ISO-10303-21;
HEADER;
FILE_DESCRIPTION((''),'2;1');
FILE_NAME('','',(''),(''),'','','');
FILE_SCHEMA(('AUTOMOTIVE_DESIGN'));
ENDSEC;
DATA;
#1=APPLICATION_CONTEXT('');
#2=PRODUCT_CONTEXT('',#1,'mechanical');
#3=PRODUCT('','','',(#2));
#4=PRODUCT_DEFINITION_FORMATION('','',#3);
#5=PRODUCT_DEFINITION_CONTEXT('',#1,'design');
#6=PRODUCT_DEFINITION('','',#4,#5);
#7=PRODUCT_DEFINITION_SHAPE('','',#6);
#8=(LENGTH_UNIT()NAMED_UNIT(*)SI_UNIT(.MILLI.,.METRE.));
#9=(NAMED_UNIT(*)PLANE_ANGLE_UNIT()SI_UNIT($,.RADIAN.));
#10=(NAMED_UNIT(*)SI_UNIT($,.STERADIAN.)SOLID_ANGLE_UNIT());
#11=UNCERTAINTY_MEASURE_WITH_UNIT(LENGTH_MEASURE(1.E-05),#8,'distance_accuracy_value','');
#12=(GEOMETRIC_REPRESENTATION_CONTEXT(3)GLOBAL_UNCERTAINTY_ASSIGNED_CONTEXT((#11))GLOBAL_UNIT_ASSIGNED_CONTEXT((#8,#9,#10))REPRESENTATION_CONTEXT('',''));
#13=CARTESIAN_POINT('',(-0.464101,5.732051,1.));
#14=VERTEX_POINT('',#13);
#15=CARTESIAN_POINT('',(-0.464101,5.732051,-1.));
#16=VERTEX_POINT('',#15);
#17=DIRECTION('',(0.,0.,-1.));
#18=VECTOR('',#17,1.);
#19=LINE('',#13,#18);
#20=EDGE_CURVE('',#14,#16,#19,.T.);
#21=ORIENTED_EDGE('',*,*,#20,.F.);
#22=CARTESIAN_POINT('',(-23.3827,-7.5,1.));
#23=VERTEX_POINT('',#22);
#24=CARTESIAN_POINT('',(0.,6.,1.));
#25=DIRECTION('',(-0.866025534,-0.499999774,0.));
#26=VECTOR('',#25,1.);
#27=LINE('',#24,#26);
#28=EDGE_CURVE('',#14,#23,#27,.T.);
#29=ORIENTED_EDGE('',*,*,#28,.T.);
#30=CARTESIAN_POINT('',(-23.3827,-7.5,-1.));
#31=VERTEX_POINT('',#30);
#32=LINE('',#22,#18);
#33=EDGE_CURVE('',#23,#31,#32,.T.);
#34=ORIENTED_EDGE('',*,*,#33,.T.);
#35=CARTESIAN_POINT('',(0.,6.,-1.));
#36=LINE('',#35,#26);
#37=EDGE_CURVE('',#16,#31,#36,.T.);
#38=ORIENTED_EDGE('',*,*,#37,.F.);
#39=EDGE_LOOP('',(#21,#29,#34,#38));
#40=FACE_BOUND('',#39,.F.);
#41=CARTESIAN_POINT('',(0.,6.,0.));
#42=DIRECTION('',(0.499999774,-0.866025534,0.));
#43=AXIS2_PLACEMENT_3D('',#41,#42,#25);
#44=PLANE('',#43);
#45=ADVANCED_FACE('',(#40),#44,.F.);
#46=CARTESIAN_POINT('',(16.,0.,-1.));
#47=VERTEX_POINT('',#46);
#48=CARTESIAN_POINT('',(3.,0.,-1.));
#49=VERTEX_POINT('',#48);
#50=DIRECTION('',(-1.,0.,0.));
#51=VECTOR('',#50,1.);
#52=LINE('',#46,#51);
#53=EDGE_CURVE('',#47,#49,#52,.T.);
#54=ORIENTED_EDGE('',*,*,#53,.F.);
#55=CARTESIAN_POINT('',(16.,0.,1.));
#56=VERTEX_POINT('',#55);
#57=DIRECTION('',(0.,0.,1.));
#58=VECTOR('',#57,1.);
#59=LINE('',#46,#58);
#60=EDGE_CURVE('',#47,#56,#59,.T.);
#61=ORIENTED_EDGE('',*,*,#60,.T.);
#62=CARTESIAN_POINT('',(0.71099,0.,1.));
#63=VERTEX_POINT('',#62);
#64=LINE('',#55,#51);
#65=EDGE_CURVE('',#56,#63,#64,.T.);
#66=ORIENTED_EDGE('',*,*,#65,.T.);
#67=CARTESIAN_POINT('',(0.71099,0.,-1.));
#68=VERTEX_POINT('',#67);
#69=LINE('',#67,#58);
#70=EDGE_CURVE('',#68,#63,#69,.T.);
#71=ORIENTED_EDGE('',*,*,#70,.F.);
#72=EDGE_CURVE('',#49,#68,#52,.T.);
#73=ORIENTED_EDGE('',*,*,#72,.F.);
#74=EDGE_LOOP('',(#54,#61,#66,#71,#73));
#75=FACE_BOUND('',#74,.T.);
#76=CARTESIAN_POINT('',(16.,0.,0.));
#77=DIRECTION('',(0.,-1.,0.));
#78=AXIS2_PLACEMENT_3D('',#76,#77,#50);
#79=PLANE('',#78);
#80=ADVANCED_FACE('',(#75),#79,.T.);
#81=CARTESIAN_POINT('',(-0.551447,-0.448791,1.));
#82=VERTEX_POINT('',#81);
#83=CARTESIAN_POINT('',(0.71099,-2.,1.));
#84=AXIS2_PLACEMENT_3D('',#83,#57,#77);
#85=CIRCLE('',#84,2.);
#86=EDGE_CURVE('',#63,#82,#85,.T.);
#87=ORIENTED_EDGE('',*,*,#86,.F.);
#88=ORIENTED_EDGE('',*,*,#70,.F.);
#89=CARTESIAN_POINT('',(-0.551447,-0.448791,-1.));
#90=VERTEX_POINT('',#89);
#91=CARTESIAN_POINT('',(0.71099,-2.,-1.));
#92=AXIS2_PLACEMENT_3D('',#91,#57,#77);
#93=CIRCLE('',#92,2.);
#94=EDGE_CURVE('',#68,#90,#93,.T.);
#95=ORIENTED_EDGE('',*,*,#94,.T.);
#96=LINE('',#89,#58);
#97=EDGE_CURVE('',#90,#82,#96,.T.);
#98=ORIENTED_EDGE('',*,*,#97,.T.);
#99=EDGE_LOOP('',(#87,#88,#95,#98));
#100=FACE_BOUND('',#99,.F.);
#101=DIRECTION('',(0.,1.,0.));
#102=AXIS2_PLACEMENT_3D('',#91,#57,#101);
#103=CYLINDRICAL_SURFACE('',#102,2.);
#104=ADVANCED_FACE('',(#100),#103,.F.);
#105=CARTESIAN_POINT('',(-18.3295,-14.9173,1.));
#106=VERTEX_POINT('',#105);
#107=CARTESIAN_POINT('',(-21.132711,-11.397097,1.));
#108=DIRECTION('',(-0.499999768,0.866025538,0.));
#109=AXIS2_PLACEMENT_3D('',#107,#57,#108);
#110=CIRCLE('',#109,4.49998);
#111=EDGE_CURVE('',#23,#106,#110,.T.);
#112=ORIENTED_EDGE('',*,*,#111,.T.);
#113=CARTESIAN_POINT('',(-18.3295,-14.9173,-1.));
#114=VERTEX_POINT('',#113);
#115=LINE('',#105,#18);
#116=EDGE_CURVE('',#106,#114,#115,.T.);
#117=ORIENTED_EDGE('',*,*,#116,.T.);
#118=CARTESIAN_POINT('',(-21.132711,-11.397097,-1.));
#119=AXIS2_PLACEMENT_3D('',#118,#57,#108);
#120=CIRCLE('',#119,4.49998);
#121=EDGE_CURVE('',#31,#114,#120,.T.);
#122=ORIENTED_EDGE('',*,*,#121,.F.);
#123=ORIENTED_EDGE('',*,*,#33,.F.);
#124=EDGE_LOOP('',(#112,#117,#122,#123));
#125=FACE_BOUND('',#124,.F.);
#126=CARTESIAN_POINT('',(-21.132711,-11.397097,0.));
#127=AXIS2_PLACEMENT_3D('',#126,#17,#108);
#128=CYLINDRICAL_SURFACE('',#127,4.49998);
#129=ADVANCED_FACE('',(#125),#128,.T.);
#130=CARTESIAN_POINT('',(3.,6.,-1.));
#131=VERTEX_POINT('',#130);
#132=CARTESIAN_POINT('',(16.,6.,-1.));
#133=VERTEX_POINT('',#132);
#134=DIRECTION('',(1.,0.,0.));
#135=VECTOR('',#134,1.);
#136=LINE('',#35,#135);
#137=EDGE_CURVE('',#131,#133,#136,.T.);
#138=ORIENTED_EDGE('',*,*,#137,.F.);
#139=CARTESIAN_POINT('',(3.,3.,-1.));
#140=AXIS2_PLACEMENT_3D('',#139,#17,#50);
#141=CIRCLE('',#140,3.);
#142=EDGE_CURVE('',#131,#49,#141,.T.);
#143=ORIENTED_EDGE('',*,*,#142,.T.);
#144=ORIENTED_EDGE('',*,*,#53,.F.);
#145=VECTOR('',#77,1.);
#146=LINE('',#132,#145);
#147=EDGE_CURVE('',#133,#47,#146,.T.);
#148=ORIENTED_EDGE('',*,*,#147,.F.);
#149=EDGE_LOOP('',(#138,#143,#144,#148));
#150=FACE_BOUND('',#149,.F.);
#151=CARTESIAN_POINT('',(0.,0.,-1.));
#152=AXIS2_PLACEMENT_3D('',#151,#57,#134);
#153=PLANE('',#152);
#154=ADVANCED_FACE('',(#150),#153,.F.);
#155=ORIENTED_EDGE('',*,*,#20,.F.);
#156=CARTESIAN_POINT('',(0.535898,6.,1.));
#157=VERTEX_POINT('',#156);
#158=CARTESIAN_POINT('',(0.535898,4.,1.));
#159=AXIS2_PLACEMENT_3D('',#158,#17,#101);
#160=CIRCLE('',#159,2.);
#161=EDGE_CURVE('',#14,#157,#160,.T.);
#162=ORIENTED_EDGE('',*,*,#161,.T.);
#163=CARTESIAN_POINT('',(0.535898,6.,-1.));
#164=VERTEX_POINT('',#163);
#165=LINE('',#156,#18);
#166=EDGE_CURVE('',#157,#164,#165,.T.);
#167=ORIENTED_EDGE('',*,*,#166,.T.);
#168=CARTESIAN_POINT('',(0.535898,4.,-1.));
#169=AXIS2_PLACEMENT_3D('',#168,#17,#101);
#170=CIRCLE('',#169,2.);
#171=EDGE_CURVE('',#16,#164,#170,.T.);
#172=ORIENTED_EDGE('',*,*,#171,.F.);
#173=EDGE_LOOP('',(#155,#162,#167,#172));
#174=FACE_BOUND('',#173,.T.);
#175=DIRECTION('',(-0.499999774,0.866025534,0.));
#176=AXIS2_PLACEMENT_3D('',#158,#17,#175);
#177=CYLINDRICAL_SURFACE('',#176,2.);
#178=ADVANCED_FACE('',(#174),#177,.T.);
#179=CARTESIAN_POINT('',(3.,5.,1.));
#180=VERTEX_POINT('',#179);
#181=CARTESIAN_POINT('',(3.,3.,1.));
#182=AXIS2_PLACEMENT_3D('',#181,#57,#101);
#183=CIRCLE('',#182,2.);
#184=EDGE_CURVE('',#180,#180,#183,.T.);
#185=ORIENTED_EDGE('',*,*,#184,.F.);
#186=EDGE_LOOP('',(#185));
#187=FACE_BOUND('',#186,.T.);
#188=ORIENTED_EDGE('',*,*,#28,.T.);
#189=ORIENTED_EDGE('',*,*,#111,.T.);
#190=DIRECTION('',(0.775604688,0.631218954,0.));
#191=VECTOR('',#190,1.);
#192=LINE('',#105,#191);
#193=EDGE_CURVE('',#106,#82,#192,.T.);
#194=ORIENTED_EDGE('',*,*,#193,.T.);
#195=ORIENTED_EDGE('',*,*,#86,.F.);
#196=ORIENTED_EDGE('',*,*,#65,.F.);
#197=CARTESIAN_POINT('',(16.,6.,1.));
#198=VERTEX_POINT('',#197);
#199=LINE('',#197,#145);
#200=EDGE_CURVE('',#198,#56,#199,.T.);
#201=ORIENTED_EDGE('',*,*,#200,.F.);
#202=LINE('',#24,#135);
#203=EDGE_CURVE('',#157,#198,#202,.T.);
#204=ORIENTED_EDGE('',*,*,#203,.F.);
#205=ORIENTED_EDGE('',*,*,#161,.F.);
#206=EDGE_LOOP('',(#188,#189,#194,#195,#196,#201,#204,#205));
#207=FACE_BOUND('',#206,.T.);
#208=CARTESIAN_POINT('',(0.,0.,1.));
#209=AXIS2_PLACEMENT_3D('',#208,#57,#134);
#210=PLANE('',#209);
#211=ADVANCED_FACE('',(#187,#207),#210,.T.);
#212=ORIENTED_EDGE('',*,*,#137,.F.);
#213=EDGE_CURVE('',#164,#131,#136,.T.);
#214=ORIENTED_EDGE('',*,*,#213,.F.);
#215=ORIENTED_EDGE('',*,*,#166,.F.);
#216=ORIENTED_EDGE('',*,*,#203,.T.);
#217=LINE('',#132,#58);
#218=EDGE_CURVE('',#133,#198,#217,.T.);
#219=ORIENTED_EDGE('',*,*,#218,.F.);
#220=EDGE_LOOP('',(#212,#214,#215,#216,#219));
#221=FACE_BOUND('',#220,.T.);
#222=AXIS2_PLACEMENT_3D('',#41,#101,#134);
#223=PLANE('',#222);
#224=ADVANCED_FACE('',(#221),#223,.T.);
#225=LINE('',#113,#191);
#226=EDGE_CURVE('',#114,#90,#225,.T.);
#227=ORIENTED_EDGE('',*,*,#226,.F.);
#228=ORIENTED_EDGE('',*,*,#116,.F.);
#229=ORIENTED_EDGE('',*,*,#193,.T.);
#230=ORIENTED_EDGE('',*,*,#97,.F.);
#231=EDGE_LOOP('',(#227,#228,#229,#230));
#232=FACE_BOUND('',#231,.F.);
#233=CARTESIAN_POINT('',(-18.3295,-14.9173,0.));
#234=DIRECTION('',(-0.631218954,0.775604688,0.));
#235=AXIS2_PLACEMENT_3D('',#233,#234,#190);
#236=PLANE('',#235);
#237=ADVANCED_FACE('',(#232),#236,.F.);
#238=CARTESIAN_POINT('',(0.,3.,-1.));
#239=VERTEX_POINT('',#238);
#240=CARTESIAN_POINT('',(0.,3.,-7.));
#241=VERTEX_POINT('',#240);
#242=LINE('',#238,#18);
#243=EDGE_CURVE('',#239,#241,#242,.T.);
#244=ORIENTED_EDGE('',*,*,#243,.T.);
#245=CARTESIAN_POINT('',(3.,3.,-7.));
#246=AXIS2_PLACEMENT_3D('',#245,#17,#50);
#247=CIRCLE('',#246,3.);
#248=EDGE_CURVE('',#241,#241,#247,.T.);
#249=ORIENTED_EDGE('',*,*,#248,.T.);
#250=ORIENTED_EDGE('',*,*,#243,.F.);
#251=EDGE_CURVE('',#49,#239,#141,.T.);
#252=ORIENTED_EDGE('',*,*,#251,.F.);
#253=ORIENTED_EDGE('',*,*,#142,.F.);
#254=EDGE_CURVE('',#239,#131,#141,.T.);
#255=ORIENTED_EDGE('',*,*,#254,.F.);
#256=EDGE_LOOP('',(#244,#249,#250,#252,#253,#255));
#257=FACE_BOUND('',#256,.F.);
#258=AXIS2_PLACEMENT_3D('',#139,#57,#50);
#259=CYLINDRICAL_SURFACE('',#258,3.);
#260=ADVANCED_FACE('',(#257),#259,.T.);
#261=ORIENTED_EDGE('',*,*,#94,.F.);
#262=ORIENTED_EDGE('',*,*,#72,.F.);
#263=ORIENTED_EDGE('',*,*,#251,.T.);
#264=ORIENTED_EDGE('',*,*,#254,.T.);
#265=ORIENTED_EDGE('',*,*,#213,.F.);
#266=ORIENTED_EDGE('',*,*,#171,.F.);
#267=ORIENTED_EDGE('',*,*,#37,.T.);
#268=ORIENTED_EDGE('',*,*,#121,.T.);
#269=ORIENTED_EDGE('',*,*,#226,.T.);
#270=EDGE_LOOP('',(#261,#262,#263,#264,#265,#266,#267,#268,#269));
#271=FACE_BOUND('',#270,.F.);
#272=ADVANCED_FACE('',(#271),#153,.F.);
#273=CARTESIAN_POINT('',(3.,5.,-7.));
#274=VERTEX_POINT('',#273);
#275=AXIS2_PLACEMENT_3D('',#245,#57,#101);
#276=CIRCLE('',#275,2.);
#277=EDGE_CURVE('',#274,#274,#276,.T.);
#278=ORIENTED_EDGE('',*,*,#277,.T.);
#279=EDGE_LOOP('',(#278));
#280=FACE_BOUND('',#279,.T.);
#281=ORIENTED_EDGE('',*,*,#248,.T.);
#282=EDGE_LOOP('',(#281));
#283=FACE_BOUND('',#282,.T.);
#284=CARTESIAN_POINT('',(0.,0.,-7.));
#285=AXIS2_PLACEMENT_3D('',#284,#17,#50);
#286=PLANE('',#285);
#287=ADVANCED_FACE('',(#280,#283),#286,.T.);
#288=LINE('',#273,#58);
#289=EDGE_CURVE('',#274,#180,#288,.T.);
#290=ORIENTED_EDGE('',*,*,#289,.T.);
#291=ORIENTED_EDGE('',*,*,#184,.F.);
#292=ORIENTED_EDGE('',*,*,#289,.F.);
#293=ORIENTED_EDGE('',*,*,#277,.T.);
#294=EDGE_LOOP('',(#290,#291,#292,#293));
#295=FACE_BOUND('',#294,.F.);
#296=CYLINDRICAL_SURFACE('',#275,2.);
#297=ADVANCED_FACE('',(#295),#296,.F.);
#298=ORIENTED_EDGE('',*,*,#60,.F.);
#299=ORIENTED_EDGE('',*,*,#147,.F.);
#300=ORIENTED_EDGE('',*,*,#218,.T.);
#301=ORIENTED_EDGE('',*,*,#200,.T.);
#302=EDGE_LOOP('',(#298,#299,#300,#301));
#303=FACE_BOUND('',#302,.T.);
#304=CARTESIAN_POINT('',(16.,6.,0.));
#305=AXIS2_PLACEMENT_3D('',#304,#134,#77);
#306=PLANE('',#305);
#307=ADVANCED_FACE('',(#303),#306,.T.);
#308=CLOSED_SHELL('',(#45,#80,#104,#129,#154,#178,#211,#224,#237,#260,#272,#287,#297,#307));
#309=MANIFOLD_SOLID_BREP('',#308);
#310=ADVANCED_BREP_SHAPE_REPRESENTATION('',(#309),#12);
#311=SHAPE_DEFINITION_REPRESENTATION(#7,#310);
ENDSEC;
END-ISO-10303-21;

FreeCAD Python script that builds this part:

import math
import FreeCAD as App
import Part
import Sketcher
from FreeCAD import Vector
Q = App.Units.Quantity


def edges_at(feature, points):
    """Names of the edges that pass closest to the given points."""
    edges = feature.Shape.Edges
    near = lambda p: min(range(len(edges)), key=lambda i: edges[i].distToShape(Part.Vertex(*p))[0])
    return sorted({f"Edge{near(p) + 1}" for p in points})

doc = App.newDocument("Part")
params = doc.addObject("Spreadsheet::Sheet", "Params")
for row, (alias, value) in enumerate([
    ("sketch1_radius", "4.5 mm"),
    ("sketch1_width", "16 mm"),
    ("sketch1_height", "6 mm"),
    ("sketch1_length", "27 mm"),
    ("pad1_length", "2 mm"),
    ("sketch2_diameter", "6 mm"),
    ("pad2_length", "6 mm"),
    ("sketch3_diameter", "4 mm"),
    ("hole_diameter", "4 mm"),
    ("hole_depth", "8 mm"),
    ("fillet_radius", "2 mm"),
], start=1):
    params.set(f"A{row}", alias)
    params.set(f"B{row}", "=" + value)
    params.setAlias(f"B{row}", alias)

body = doc.addObject("PartDesign::Body", "Body")

# Sketch on XY plane
sketch1 = body.newObject("Sketcher::SketchObject", "Sketch")
sketch1.AttachmentSupport = (doc.getObject("XY_Plane"), [""])
sketch1.MapMode = "FlatFace"
sketch1.addGeometry([
    Part.LineSegment(Vector(-18.3295, -14.9173, 0), Vector(0, 0, 0)),  # 0
    Part.LineSegment(Vector(0, 0, 0), Vector(16, 0, 0)),  # 1
    Part.LineSegment(Vector(16, 0, 0), Vector(16, 6, 0)),  # 2
    Part.LineSegment(Vector(16, 6, 0), Vector(0, 6, 0)),  # 3
    Part.LineSegment(Vector(0, 6, 0), Vector(-23.3827, -7.5, 0)),  # 4
    Part.ArcOfCircle(Part.Circle(Vector(-21.1327, -11.3971, 0), Vector(0, 0, 1), 4.499988), math.radians(120.000091), math.radians(308.530955)),  # 5
], False)
sketch1.addConstraint([
    Sketcher.Constraint("Coincident", 0, 2, 1, 1),
    Sketcher.Constraint("Coincident", 1, 2, 2, 1),
    Sketcher.Constraint("Coincident", 2, 2, 3, 1),
    Sketcher.Constraint("Coincident", 3, 2, 4, 1),
    Sketcher.Constraint("Coincident", 4, 2, 5, 1),
    Sketcher.Constraint("Coincident", 5, 2, 0, 1),
    Sketcher.Constraint("Horizontal", 1),
    Sketcher.Constraint("Vertical", 2),
    Sketcher.Constraint("Horizontal", 3),
    Sketcher.Constraint("Coincident", 0, 2, -1, 1),
    Sketcher.Constraint("PointOnObject", 3, 2, -2),
    Sketcher.Constraint("Radius", 5, Q("4.5 mm")),
    Sketcher.Constraint("DistanceX", 1, 1, 1, 2, Q("16 mm")),
    Sketcher.Constraint("DistanceY", 2, 1, 2, 2, Q("6 mm")),
    Sketcher.Constraint("Distance", 4, Q("27 mm")),
    Sketcher.Constraint("DistanceY", 4, 2, -1, 1, Q("7.5 mm")),
    Sketcher.Constraint("DistanceX", 4, 2, 5, 3, Q("2.25 mm")),
    Sketcher.Constraint("Distance", 0, Q("23.6325 mm")),
])
sketch1.setExpression("Constraints[11]", "Params.sketch1_radius")
sketch1.setExpression("Constraints[12]", "Params.sketch1_width")
sketch1.setExpression("Constraints[13]", "Params.sketch1_height")
sketch1.setExpression("Constraints[14]", "Params.sketch1_length")
pad1 = body.newObject("PartDesign::Pad", "Pad")
pad1.Profile = sketch1
pad1.setExpression("Length", "Params.pad1_length")
pad1.Midplane = True

# Sketch on XY plane
sketch2 = body.newObject("Sketcher::SketchObject", "Sketch001")
sketch2.AttachmentSupport = (doc.getObject("XY_Plane"), [""])
sketch2.MapMode = "FlatFace"
sketch2.AttachmentOffset = App.Placement(Vector(0, 0, -1), App.Rotation())
sketch2.addGeometry(Part.Circle(Vector(3, 3, 0), Vector(0, 0, 1), 3), False)
sketch2.addConstraint([
    Sketcher.Constraint("Diameter", 0, Q("6 mm")),
    Sketcher.Constraint("DistanceX", -1, 1, 0, 3, Q("3 mm")),
    Sketcher.Constraint("DistanceY", -1, 1, 0, 3, Q("3 mm")),
])
sketch2.setExpression("Constraints[0]", "Params.sketch2_diameter")
pad2 = body.newObject("PartDesign::Pad", "Pad001")
pad2.Profile = sketch2
pad2.setExpression("Length", "Params.pad2_length")
pad2.Reversed = True

# Sketch on XY plane
sketch3 = body.newObject("Sketcher::SketchObject", "Sketch002")
sketch3.AttachmentSupport = (doc.getObject("XY_Plane"), [""])
sketch3.MapMode = "FlatFace"
sketch3.AttachmentOffset = App.Placement(Vector(0, 0, -7), App.Rotation())
sketch3.addGeometry(Part.Circle(Vector(3, 3, 0), Vector(0, 0, 1), 2), False)
sketch3.addConstraint([
    Sketcher.Constraint("Diameter", 0, Q("4 mm")),
    Sketcher.Constraint("DistanceX", -1, 1, 0, 3, Q("3 mm")),
    Sketcher.Constraint("DistanceY", -1, 1, 0, 3, Q("3 mm")),
])
sketch3.setExpression("Constraints[0]", "Params.sketch3_diameter")
doc.recompute()
hole = body.newObject("PartDesign::Hole", "Hole")
hole.Profile = sketch3
hole.ThreadType = "None"
hole.setExpression("Diameter", "Params.hole_diameter")
hole.DepthType = "Dimension"
hole.setExpression("Depth", "Params.hole_depth")
hole.DrillPoint = "Flat"
hole.Reversed = True
doc.recompute()

fillet = body.newObject("PartDesign::Fillet", "Fillet")
fillet.Base = (hole, edges_at(hole, [(0, 6, 0), (0, 0, 0)]))
fillet.setExpression("Radius", "Params.fillet_radius")

doc.recompute()
